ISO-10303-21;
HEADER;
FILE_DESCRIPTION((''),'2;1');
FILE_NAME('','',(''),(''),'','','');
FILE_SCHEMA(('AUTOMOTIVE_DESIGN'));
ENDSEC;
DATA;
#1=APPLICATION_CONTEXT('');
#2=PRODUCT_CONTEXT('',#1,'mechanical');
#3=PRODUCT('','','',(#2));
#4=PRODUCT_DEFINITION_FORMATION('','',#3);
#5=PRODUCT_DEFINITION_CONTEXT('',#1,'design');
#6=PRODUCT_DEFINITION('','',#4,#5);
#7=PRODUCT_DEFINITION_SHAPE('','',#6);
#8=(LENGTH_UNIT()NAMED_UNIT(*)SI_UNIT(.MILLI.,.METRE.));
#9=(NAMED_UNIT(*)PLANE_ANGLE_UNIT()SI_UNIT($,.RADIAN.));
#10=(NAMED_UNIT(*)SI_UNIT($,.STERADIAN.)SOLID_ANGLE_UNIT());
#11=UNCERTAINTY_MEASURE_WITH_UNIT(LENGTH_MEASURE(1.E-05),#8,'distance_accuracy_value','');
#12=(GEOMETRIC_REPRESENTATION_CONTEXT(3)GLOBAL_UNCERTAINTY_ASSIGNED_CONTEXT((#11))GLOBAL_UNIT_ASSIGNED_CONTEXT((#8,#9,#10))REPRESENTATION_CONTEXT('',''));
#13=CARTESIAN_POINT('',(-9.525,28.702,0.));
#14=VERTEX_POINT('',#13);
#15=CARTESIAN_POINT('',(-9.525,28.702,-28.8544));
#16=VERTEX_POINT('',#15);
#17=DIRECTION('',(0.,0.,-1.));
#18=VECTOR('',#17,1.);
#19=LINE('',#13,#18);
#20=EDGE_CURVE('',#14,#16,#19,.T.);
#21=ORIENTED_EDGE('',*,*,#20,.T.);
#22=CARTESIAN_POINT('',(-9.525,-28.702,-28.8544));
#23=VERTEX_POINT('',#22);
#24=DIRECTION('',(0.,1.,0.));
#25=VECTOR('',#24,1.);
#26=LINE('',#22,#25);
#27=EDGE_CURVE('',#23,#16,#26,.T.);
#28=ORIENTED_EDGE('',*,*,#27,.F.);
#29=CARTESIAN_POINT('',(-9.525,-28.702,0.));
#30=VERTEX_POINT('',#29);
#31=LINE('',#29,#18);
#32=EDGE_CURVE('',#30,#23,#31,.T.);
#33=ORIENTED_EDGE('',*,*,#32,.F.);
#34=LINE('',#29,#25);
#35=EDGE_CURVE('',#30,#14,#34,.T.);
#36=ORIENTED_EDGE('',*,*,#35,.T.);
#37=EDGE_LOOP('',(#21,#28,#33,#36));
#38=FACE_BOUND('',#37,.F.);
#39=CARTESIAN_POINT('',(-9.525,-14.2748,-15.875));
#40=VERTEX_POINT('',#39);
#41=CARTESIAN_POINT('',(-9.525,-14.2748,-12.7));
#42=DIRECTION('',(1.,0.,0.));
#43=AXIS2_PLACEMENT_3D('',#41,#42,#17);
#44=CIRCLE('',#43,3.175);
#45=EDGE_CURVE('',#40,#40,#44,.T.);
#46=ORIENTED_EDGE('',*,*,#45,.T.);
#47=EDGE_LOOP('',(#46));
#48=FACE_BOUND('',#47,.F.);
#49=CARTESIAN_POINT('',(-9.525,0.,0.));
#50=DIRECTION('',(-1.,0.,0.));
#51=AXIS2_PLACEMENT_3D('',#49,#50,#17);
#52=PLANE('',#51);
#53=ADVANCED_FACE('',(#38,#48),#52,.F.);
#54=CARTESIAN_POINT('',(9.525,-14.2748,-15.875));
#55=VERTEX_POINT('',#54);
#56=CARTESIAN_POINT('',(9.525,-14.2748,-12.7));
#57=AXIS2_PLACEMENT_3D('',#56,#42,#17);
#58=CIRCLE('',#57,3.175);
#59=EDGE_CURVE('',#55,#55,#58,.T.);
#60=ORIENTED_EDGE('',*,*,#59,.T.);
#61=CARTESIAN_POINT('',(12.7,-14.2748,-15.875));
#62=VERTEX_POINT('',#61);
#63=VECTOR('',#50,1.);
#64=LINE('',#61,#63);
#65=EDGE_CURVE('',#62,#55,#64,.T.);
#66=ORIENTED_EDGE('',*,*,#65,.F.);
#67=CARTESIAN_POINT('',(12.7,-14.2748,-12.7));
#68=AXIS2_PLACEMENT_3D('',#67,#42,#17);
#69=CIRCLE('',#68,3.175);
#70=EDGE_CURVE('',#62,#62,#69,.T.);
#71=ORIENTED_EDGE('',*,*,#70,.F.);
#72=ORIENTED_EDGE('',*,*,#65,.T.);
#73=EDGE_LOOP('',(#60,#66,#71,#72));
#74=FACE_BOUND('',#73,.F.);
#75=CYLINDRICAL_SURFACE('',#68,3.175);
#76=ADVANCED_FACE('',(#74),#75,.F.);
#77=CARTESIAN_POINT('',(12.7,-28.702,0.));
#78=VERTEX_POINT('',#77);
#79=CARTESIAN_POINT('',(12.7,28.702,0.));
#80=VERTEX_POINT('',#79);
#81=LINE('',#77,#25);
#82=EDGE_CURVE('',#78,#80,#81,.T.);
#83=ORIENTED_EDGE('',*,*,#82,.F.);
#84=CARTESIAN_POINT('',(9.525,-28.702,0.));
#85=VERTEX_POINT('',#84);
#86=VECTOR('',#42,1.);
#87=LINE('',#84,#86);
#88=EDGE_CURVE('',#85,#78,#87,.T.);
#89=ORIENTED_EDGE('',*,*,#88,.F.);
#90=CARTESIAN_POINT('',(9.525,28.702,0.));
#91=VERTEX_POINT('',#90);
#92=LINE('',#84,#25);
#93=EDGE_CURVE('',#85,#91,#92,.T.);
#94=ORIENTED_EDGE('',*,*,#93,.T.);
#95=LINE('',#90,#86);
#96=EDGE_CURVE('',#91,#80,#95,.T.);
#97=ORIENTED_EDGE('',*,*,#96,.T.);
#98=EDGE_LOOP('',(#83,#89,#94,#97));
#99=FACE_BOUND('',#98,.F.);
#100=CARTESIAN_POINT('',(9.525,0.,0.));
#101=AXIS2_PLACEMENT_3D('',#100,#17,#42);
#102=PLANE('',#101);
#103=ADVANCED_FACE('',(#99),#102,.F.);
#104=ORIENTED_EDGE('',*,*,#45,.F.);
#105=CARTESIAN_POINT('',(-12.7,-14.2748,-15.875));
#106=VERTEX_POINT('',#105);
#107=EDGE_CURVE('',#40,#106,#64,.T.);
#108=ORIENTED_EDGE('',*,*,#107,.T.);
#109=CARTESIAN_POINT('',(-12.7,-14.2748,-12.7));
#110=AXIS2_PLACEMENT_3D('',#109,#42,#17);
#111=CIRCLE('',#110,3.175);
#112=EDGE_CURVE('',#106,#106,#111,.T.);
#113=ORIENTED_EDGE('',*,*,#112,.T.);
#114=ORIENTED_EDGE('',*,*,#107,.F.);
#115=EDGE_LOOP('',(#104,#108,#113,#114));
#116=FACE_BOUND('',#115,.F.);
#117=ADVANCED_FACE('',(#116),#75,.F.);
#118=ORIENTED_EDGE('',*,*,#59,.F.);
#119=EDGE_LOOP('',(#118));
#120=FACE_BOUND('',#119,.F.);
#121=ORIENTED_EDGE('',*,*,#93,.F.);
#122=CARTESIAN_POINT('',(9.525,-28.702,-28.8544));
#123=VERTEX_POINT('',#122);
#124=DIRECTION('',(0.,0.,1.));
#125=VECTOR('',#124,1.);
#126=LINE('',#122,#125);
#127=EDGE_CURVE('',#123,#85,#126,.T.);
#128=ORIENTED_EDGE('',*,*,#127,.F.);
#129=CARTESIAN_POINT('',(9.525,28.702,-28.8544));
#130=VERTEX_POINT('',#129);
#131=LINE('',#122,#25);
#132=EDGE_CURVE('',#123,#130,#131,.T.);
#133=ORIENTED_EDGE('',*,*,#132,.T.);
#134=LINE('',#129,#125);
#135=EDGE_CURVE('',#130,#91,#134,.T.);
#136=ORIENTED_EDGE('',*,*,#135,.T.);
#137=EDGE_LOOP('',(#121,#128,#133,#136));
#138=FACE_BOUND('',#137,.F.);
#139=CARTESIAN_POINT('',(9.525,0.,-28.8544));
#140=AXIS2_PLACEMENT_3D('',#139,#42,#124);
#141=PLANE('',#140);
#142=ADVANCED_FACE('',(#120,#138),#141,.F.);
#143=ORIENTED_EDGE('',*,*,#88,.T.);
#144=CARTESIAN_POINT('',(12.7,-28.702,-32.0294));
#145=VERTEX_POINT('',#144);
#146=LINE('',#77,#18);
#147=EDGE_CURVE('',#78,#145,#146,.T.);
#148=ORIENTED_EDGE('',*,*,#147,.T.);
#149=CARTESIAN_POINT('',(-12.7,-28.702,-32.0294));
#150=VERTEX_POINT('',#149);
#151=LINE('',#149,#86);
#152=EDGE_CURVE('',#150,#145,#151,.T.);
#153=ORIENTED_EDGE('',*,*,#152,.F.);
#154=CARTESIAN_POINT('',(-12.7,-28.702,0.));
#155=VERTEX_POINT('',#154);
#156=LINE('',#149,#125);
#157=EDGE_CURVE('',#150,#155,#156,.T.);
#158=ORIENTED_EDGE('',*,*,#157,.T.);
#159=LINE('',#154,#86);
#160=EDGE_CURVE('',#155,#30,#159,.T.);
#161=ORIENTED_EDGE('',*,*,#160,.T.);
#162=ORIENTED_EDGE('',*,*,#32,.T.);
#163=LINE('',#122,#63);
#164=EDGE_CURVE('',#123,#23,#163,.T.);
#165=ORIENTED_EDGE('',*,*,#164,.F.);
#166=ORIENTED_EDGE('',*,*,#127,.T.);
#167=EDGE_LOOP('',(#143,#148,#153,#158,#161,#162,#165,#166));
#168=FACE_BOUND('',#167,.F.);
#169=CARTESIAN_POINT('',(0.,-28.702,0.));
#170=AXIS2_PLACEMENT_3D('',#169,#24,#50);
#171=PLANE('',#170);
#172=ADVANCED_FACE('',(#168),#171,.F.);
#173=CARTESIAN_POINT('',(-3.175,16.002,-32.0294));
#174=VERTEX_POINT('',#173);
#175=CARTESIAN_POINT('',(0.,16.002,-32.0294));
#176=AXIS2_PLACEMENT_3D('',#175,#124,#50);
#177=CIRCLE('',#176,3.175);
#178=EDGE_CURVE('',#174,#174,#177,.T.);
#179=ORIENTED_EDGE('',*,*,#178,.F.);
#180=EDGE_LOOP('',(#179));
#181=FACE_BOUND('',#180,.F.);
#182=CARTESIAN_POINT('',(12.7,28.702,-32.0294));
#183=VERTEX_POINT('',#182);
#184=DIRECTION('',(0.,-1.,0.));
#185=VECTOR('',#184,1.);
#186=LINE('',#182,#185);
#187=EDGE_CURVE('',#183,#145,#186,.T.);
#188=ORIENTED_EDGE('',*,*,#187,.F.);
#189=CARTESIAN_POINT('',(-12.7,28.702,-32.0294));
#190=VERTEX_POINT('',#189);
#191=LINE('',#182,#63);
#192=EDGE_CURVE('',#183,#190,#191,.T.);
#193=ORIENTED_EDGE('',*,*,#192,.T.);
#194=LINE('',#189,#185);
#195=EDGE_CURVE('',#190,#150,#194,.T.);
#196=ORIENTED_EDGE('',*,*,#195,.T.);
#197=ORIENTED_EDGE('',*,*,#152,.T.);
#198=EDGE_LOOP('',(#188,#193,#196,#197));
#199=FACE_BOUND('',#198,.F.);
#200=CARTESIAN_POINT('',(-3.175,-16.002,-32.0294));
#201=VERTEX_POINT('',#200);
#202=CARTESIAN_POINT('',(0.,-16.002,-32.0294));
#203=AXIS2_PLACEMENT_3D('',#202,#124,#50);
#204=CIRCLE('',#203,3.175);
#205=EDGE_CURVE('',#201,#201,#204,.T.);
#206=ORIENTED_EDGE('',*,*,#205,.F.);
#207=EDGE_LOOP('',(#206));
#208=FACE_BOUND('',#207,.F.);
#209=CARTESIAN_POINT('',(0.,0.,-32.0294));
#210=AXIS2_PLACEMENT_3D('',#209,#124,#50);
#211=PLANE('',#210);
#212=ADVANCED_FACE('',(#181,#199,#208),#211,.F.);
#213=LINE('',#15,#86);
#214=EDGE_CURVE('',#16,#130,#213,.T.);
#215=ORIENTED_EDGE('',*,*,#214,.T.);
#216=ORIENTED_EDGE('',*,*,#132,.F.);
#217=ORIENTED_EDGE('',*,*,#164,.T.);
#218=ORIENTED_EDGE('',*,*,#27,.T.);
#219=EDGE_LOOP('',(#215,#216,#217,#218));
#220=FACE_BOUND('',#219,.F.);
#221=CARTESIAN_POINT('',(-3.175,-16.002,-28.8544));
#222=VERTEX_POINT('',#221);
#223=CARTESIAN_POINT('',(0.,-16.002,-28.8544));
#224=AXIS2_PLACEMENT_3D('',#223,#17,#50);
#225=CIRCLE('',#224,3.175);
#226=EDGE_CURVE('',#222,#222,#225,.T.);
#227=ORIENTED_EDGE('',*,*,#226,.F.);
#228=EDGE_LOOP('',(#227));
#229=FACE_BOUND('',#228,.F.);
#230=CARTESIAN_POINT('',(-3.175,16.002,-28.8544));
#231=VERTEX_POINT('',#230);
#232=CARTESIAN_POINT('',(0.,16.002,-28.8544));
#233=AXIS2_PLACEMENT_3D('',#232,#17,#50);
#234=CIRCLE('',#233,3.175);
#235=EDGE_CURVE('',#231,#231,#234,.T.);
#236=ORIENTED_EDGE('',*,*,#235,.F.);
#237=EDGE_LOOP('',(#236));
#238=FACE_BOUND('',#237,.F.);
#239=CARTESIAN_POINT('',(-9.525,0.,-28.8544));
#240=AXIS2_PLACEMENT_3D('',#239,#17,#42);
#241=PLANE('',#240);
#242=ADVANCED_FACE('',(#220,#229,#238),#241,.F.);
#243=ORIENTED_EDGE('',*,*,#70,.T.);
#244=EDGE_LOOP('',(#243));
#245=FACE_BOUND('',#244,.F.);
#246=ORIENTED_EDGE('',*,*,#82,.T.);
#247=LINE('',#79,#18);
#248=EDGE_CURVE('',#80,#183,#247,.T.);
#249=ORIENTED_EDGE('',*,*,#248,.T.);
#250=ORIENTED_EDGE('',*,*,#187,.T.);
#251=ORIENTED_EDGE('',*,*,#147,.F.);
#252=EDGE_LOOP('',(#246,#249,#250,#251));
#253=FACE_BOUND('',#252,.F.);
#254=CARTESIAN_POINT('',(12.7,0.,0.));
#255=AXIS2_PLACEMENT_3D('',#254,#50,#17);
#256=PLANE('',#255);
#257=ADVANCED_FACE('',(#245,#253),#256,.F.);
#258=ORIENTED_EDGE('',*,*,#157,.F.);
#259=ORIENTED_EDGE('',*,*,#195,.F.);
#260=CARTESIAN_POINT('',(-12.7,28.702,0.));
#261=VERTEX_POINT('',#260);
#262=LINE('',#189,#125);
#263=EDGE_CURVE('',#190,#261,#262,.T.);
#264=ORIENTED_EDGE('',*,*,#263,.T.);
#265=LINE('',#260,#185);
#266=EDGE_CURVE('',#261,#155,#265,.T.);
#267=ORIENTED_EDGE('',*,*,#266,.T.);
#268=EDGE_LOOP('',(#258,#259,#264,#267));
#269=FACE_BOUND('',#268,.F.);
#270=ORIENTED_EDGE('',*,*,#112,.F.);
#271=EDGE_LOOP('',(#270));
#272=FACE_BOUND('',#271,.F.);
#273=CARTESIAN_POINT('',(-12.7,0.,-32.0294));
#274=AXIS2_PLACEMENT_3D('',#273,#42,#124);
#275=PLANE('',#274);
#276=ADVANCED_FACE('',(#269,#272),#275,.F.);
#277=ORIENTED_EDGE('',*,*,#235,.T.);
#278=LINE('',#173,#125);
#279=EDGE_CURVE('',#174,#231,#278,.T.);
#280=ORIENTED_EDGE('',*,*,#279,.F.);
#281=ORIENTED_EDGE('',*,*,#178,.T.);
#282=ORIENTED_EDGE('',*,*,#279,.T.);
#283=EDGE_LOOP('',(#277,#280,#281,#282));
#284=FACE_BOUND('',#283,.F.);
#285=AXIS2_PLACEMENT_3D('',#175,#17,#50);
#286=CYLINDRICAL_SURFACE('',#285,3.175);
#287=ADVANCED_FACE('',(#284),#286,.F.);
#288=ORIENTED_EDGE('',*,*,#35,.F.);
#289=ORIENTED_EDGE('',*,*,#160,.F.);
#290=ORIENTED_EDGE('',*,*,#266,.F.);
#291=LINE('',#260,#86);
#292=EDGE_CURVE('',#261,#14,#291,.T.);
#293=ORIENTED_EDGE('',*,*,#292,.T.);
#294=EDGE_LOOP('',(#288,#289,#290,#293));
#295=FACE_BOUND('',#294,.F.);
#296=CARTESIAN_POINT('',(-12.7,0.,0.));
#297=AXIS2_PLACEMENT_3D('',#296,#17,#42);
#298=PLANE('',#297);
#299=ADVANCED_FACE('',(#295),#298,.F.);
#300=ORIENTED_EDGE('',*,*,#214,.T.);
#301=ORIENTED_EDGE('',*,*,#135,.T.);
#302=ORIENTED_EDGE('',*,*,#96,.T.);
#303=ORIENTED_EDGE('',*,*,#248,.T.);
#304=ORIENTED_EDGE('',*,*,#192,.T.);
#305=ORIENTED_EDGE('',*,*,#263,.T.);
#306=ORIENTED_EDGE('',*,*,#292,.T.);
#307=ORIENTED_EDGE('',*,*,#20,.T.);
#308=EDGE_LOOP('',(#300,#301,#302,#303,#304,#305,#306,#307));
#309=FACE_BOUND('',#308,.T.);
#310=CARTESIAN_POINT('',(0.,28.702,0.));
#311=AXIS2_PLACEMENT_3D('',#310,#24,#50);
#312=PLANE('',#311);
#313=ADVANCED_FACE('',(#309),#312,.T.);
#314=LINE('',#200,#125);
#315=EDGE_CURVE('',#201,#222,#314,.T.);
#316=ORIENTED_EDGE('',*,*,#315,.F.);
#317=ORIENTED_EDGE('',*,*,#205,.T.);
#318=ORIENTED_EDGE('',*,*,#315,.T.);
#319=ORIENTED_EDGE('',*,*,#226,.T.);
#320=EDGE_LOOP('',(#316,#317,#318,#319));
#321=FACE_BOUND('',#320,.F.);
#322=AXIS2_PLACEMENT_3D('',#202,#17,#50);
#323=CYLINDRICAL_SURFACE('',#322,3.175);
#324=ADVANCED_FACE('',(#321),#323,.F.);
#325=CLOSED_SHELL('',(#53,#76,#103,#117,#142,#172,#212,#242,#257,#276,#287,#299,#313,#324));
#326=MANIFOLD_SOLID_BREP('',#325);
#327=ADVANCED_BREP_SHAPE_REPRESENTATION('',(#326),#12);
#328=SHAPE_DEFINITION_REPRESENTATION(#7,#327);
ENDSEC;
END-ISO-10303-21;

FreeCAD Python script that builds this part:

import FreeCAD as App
import Part
import Sketcher
Q = App.Units.Quantity

doc = App.newDocument("Part")
body = doc.addObject("PartDesign::Body", "Body")

sketch1 = doc.addObject("Sketcher::SketchObject", "Sketch")
body.addObject(sketch1)
sketch1.AttachmentSupport = (doc.XZ_Plane, [""])
sketch1.MapMode = "FlatFace"
sketch1.addGeometry(Part.LineSegment(App.Vector(-12.7, 0, 0), App.Vector(-9.5, 0, 0)), False)
sketch1.addGeometry(Part.LineSegment(App.Vector(-9.5, 0, 0), App.Vector(-9.5, -28.9, 0)), False)
sketch1.addGeometry(Part.LineSegment(App.Vector(-9.5, -28.9, 0), App.Vector(9.5, -28.9, 0)), False)
sketch1.addGeometry(Part.LineSegment(App.Vector(9.5, -28.9, 0), App.Vector(9.5, 0, 0)), False)
sketch1.addGeometry(Part.LineSegment(App.Vector(9.5, 0, 0), App.Vector(12.7, 0, 0)), False)
sketch1.addGeometry(Part.LineSegment(App.Vector(12.7, 0, 0), App.Vector(12.7, -32, 0)), False)
sketch1.addGeometry(Part.LineSegment(App.Vector(12.7, -32, 0), App.Vector(-12.7, -32, 0)), False)
sketch1.addGeometry(Part.LineSegment(App.Vector(-12.7, -32, 0), App.Vector(-12.7, 0, 0)), False)
sketch1.addConstraint(Sketcher.Constraint("Coincident", 0, 2, 1, 1))
sketch1.addConstraint(Sketcher.Constraint("Coincident", 1, 2, 2, 1))
sketch1.addConstraint(Sketcher.Constraint("Coincident", 2, 2, 3, 1))
sketch1.addConstraint(Sketcher.Constraint("Coincident", 3, 2, 4, 1))
sketch1.addConstraint(Sketcher.Constraint("Coincident", 4, 2, 5, 1))
sketch1.addConstraint(Sketcher.Constraint("Coincident", 5, 2, 6, 1))
sketch1.addConstraint(Sketcher.Constraint("Coincident", 6, 2, 7, 1))
sketch1.addConstraint(Sketcher.Constraint("Coincident", 7, 2, 0, 1))
sketch1.addConstraint(Sketcher.Constraint("Horizontal", 0))
sketch1.addConstraint(Sketcher.Constraint("Vertical", 1))
sketch1.addConstraint(Sketcher.Constraint("Horizontal", 2))
sketch1.addConstraint(Sketcher.Constraint("Vertical", 3))
sketch1.addConstraint(Sketcher.Constraint("Horizontal", 4))
sketch1.addConstraint(Sketcher.Constraint("Vertical", 5))
sketch1.addConstraint(Sketcher.Constraint("Horizontal", 6))
sketch1.addConstraint(Sketcher.Constraint("Vertical", 7))
sketch1.addConstraint(Sketcher.Constraint("Symmetric", 0, 2, 3, 2, -1, 1))
sketch1.addConstraint(Sketcher.Constraint("Symmetric", 4, 2, 7, 2, -2))
sketch1.addConstraint(Sketcher.Constraint("DistanceX", 2, 1, 2, 2, Q("0.75 in")))
sketch1.addConstraint(Sketcher.Constraint("DistanceX", 0, 1, 0, 2, Q("0.125 in")))
sketch1.addConstraint(Sketcher.Constraint("DistanceY", 1, 2, 1, 1, Q("1.136 in")))
sketch1.addConstraint(Sketcher.Constraint("DistanceY", 5, 2, 2, 2, Q("0.125 in")))
pad1 = doc.addObject("PartDesign::Pad", "Pad")
body.addObject(pad1)
pad1.Profile = sketch1
pad1.Length = Q("2.26 in")
pad1.Midplane = True

sketch2 = doc.addObject("Sketcher::SketchObject", "Sketch001")
body.addObject(sketch2)
sketch2.AttachmentSupport = (doc.XY_Plane, [""])
sketch2.MapMode = "FlatFace"
sketch2.AttachmentOffset = App.Placement(App.Vector(0, 0, -1.261 * 25.4), App.Rotation())
sketch2.addGeometry(Part.Circle(App.Vector(0, -16, 0), App.Vector(0, 0, 1), 3.2), False)
sketch2.addGeometry(Part.Circle(App.Vector(0, 16, 0), App.Vector(0, 0, 1), 3.2), False)
sketch2.addConstraint(Sketcher.Constraint("Equal", 0, 1))
sketch2.addConstraint(Sketcher.Constraint("Symmetric", 0, 3, 1, 3, -1, 1))
sketch2.addConstraint(Sketcher.Constraint("PointOnObject", 0, 3, -2))
sketch2.addConstraint(Sketcher.Constraint("Diameter", 0, Q("0.25 in")))
sketch2.addConstraint(Sketcher.Constraint("DistanceY", 0, 3, -1, 1, Q("0.63 in")))
pocket1 = doc.addObject("PartDesign::Pocket", "Pocket")
body.addObject(pocket1)
pocket1.Profile = sketch2
pocket1.Type = "UpToFirst"
pocket1.Reversed = True

sketch3 = doc.addObject("Sketcher::SketchObject", "Sketch002")
body.addObject(sketch3)
sketch3.AttachmentSupport = (doc.YZ_Plane, [""])
sketch3.MapMode = "FlatFace"
sketch3.AttachmentOffset = App.Placement(App.Vector(0, 0, 0.5 * 25.4), App.Rotation())
sketch3.addGeometry(Part.Circle(App.Vector(-14.3, -12.7, 0), App.Vector(0, 0, 1), 3.2), False)
sketch3.addConstraint(Sketcher.Constraint("Diameter", 0, Q("0.25 in")))
sketch3.addConstraint(Sketcher.Constraint("DistanceY", 0, 3, -1, 1, Q("0.5 in")))
sketch3.addConstraint(Sketcher.Constraint("DistanceX", 0, 3, -1, 1, Q("0.562 in")))
pocket2 = doc.addObject("PartDesign::Pocket", "Pocket001")
body.addObject(pocket2)
pocket2.Profile = sketch3
pocket2.Length = Q("1 in")

doc.recompute()
